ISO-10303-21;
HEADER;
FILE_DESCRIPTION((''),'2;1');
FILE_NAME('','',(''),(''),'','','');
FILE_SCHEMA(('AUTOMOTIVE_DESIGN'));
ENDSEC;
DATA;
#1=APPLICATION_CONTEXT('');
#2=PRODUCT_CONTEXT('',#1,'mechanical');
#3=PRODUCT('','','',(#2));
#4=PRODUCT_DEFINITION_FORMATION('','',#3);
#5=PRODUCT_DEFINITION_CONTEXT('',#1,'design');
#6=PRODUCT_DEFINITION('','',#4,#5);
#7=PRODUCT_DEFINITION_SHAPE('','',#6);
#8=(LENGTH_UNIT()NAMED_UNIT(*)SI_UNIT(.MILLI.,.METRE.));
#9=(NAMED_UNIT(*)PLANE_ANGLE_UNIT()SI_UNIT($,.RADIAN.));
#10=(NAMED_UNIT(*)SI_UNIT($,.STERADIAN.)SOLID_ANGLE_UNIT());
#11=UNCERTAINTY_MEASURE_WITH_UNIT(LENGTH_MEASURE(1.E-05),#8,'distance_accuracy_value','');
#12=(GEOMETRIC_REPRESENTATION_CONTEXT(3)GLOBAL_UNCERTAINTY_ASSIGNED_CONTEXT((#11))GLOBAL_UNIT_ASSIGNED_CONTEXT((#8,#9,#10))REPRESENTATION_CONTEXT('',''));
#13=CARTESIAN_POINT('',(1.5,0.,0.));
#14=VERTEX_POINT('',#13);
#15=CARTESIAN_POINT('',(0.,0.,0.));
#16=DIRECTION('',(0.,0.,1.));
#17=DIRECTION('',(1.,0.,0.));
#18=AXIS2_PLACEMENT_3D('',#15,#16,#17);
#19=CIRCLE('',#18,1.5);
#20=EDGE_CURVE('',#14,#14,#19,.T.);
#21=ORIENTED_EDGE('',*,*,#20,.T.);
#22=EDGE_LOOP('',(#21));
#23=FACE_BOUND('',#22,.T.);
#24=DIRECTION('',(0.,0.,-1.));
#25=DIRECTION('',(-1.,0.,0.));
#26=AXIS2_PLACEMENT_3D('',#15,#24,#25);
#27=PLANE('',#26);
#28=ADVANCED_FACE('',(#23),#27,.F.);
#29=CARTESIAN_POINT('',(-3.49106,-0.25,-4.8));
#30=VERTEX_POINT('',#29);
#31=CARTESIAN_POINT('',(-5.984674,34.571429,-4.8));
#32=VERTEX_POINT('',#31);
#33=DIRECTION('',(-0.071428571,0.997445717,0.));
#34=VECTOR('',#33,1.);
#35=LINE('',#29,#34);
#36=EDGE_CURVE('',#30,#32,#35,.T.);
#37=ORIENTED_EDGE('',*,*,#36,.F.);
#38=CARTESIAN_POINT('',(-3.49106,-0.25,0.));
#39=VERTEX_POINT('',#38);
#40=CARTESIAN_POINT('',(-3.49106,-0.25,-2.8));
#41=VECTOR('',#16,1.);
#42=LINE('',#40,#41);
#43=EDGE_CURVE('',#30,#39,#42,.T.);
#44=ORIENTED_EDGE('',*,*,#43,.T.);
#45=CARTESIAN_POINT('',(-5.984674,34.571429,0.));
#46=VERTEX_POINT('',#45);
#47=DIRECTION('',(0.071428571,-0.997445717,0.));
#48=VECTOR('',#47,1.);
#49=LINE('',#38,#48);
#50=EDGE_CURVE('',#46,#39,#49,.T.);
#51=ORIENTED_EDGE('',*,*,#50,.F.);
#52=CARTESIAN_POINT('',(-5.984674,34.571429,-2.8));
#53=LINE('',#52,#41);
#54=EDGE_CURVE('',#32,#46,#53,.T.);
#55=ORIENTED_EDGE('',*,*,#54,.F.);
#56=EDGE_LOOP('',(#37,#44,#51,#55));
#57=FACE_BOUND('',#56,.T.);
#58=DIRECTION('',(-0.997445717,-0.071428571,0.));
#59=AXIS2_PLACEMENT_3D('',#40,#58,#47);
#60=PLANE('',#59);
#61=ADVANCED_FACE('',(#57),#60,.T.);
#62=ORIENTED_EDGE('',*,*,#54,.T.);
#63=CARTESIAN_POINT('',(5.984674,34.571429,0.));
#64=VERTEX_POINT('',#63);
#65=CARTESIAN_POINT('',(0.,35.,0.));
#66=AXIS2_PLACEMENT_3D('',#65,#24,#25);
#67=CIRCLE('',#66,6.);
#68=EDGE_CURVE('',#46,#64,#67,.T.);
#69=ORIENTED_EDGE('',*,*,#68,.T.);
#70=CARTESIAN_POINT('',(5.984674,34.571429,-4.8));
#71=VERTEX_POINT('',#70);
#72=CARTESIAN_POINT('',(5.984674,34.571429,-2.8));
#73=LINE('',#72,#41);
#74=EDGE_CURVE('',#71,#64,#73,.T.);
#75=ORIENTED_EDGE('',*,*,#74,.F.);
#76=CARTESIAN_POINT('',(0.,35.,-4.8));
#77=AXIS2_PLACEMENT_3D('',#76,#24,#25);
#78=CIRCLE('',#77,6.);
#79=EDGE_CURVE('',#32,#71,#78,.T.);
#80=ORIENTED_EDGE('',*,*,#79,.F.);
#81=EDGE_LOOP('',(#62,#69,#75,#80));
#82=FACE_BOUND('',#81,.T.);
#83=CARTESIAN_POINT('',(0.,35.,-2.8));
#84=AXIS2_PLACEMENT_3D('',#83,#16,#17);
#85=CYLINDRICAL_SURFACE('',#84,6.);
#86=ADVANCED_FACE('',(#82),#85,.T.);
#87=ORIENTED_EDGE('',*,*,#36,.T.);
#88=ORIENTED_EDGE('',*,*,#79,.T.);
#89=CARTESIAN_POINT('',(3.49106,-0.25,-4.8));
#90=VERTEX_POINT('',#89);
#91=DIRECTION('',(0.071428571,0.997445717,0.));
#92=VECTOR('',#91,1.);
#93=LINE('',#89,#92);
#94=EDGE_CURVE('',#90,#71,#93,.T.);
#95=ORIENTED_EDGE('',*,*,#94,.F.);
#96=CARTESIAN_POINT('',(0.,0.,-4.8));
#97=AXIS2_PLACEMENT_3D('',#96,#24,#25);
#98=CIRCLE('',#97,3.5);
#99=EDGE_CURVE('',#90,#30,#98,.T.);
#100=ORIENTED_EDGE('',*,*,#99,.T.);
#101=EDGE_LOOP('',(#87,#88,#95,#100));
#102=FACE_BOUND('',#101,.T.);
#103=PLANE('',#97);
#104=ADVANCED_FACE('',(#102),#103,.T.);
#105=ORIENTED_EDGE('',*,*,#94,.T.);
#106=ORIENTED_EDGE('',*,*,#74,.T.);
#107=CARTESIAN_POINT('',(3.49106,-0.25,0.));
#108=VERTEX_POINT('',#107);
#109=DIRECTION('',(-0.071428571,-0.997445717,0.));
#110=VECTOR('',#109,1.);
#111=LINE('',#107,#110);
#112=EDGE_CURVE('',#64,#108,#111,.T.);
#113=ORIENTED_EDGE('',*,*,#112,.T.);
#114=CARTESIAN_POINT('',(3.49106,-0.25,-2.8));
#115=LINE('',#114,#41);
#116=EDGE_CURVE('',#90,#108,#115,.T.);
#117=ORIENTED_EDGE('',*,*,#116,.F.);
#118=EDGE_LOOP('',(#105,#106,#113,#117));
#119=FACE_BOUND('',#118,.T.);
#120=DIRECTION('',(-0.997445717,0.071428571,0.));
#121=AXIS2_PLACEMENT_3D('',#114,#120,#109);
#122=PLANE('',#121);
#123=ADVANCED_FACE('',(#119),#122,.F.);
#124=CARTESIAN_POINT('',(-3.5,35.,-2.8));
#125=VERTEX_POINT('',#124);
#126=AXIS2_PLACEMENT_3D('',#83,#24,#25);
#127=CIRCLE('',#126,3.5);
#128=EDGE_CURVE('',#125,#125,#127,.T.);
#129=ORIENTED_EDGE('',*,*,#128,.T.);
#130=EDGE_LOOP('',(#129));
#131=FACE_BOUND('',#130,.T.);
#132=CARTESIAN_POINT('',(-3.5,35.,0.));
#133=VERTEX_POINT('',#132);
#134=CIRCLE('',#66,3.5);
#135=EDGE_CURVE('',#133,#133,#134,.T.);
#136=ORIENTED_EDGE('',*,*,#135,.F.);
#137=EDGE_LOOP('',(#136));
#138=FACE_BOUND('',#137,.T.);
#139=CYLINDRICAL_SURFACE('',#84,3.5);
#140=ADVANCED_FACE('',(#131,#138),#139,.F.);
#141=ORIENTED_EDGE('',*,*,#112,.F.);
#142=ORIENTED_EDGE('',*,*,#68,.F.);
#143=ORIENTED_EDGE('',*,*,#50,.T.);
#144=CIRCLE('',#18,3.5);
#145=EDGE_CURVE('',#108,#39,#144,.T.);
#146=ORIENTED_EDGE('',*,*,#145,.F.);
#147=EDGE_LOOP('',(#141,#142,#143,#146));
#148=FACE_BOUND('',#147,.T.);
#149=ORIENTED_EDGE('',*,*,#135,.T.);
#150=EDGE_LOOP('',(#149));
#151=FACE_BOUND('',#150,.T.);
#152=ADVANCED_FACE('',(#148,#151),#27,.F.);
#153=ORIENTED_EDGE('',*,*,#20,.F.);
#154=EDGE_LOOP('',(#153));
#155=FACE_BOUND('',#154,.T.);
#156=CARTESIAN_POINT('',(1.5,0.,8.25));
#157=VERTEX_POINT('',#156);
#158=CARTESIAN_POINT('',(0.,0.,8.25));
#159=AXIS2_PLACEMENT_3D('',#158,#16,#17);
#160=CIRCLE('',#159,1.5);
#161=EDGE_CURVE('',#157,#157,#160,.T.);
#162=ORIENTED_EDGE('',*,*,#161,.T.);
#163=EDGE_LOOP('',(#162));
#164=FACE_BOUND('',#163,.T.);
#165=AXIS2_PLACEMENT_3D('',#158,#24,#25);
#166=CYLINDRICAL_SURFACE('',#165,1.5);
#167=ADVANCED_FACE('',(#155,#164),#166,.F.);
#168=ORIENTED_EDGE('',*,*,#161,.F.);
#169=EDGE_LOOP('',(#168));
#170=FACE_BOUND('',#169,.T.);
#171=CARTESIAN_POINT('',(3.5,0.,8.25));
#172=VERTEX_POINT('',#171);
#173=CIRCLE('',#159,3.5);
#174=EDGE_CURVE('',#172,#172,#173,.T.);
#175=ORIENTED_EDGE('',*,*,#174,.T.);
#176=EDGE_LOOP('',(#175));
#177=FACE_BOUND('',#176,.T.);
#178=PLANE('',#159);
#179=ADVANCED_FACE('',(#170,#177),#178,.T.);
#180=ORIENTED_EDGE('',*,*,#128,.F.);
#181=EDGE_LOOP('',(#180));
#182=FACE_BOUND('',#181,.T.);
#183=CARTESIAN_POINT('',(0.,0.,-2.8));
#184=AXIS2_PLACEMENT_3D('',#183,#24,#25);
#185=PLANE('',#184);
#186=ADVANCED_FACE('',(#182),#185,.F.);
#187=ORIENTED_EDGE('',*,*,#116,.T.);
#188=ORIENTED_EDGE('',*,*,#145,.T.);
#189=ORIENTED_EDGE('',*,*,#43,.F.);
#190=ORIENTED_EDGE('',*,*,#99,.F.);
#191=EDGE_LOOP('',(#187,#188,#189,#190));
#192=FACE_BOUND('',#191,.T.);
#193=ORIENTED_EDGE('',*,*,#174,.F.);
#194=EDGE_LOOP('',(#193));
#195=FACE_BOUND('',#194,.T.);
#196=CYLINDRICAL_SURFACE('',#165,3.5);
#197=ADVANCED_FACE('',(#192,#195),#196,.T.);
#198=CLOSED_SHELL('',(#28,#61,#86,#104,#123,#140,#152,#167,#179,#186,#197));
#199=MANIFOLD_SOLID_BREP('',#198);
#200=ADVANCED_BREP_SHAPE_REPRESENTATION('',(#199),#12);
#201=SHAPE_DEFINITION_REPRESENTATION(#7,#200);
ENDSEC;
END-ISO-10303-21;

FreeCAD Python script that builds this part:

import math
import FreeCAD as App
import Part
import Sketcher

V = App.Vector
Q = App.Units.Quantity

doc = App.newDocument("Part")
body = doc.addObject("PartDesign::Body", "Body")

# Sketch on XY plane
sketch1 = body.newObject("Sketcher::SketchObject", "Sketch")
sketch1.AttachmentSupport = (doc.getObject("XY_Plane"), [""])
sketch1.MapMode = "FlatFace"
sketch1.addGeometry([
    Part.Circle(V(0, 0, 0), V(0, 0, 1), 3.5),
    Part.Circle(V(0, 0, 0), V(0, 0, 1), 1.5),
], False)
sketch1.addConstraint([
    Sketcher.Constraint("Coincident", 0, 3, -1, 1),
    Sketcher.Constraint("Coincident", 1, 3, -1, 1),
    Sketcher.Constraint("Diameter", 0, Q("7 mm")),
    Sketcher.Constraint("Diameter", 1, Q("3 mm")),
])
pad1 = body.newObject("PartDesign::Pad", "Pad")
pad1.Profile = sketch1
pad1.Length = 8.25

# Sketch on XY plane
sketch2 = body.newObject("Sketcher::SketchObject", "Sketch001")
sketch2.AttachmentSupport = (doc.getObject("XY_Plane"), [""])
sketch2.MapMode = "FlatFace"
sketch2.AttachmentOffset = App.Placement(V(0, 0, -2.8), App.Rotation())
sketch2.addGeometry([
    Part.LineSegment(V(5.984674, 34.571429, 0), V(3.49106, -0.25, 0)),  # 0
    Part.ArcOfCircle(Part.Circle(V(0, 0, 0), V(0, 0, 1), 3.5), math.radians(-175.903956), math.radians(-4.096044)),  # 1
    Part.LineSegment(V(-3.49106, -0.25, 0), V(-5.984674, 34.571429, 0)),  # 2
    Part.ArcOfCircle(Part.Circle(V(0, 35, 0), V(0, 0, 1), 6), math.radians(-4.096044), math.radians(184.096044)),  # 3
    Part.Circle(V(0, 35, 0), V(0, 0, 1), 3.5),  # 4
], False)
sketch2.addConstraint([
    Sketcher.Constraint("Tangent", 0, 2, 1, 2),
    Sketcher.Constraint("Tangent", 1, 1, 2, 1),
    Sketcher.Constraint("Tangent", 2, 2, 3, 2),
    Sketcher.Constraint("Tangent", 3, 1, 0, 1),
    Sketcher.Constraint("Coincident", 1, 3, -1, 1),
    Sketcher.Constraint("Coincident", 4, 3, 3, 3),
    Sketcher.Constraint("Equal", 1, 4),
    Sketcher.Constraint("PointOnObject", 3, 3, -2),
    Sketcher.Constraint("Diameter", 4, Q("7 mm")),
    Sketcher.Constraint("Radius", 3, Q("6 mm")),
    Sketcher.Constraint("DistanceY", -1, 1, 3, 3, Q("35 mm")),
])
pad2 = body.newObject("PartDesign::Pad", "Pad001")
pad2.Profile = sketch2
pad2.Length = 2.8

# Sketch on XY plane
sketch3 = body.newObject("Sketcher::SketchObject", "Sketch002")
sketch3.AttachmentSupport = (doc.getObject("XY_Plane"), [""])
sketch3.MapMode = "FlatFace"
sketch3.AttachmentOffset = App.Placement(V(0, 0, -4.8), App.Rotation())
sketch3.addGeometry([
    Part.LineSegment(V(5.984674, 34.571429, 0), V(3.49106, -0.25, 0)),
    Part.ArcOfCircle(Part.Circle(V(0, 0, 0), V(0, 0, 1), 3.5), math.radians(-175.903956), math.radians(-4.096044)),
    Part.LineSegment(V(-3.49106, -0.25, 0), V(-5.984674, 34.571429, 0)),
    Part.ArcOfCircle(Part.Circle(V(0, 35, 0), V(0, 0, 1), 6), math.radians(-4.096044), math.radians(184.096044)),
], False)
sketch3.addConstraint([
    Sketcher.Constraint("Tangent", 0, 2, 1, 2),
    Sketcher.Constraint("Tangent", 1, 1, 2, 1),
    Sketcher.Constraint("Tangent", 2, 2, 3, 2),
    Sketcher.Constraint("Tangent", 3, 1, 0, 1),
    Sketcher.Constraint("Coincident", 1, 3, -1, 1),
    Sketcher.Constraint("PointOnObject", 3, 3, -2),
    Sketcher.Constraint("Radius", 3, Q("6 mm")),
    Sketcher.Constraint("Radius", 1, Q("3.5 mm")),
    Sketcher.Constraint("DistanceY", -1, 1, 3, 3, Q("35 mm")),
])
pad3 = body.newObject("PartDesign::Pad", "Pad002")
pad3.Profile = sketch3
pad3.Length = 2

doc.recompute()
